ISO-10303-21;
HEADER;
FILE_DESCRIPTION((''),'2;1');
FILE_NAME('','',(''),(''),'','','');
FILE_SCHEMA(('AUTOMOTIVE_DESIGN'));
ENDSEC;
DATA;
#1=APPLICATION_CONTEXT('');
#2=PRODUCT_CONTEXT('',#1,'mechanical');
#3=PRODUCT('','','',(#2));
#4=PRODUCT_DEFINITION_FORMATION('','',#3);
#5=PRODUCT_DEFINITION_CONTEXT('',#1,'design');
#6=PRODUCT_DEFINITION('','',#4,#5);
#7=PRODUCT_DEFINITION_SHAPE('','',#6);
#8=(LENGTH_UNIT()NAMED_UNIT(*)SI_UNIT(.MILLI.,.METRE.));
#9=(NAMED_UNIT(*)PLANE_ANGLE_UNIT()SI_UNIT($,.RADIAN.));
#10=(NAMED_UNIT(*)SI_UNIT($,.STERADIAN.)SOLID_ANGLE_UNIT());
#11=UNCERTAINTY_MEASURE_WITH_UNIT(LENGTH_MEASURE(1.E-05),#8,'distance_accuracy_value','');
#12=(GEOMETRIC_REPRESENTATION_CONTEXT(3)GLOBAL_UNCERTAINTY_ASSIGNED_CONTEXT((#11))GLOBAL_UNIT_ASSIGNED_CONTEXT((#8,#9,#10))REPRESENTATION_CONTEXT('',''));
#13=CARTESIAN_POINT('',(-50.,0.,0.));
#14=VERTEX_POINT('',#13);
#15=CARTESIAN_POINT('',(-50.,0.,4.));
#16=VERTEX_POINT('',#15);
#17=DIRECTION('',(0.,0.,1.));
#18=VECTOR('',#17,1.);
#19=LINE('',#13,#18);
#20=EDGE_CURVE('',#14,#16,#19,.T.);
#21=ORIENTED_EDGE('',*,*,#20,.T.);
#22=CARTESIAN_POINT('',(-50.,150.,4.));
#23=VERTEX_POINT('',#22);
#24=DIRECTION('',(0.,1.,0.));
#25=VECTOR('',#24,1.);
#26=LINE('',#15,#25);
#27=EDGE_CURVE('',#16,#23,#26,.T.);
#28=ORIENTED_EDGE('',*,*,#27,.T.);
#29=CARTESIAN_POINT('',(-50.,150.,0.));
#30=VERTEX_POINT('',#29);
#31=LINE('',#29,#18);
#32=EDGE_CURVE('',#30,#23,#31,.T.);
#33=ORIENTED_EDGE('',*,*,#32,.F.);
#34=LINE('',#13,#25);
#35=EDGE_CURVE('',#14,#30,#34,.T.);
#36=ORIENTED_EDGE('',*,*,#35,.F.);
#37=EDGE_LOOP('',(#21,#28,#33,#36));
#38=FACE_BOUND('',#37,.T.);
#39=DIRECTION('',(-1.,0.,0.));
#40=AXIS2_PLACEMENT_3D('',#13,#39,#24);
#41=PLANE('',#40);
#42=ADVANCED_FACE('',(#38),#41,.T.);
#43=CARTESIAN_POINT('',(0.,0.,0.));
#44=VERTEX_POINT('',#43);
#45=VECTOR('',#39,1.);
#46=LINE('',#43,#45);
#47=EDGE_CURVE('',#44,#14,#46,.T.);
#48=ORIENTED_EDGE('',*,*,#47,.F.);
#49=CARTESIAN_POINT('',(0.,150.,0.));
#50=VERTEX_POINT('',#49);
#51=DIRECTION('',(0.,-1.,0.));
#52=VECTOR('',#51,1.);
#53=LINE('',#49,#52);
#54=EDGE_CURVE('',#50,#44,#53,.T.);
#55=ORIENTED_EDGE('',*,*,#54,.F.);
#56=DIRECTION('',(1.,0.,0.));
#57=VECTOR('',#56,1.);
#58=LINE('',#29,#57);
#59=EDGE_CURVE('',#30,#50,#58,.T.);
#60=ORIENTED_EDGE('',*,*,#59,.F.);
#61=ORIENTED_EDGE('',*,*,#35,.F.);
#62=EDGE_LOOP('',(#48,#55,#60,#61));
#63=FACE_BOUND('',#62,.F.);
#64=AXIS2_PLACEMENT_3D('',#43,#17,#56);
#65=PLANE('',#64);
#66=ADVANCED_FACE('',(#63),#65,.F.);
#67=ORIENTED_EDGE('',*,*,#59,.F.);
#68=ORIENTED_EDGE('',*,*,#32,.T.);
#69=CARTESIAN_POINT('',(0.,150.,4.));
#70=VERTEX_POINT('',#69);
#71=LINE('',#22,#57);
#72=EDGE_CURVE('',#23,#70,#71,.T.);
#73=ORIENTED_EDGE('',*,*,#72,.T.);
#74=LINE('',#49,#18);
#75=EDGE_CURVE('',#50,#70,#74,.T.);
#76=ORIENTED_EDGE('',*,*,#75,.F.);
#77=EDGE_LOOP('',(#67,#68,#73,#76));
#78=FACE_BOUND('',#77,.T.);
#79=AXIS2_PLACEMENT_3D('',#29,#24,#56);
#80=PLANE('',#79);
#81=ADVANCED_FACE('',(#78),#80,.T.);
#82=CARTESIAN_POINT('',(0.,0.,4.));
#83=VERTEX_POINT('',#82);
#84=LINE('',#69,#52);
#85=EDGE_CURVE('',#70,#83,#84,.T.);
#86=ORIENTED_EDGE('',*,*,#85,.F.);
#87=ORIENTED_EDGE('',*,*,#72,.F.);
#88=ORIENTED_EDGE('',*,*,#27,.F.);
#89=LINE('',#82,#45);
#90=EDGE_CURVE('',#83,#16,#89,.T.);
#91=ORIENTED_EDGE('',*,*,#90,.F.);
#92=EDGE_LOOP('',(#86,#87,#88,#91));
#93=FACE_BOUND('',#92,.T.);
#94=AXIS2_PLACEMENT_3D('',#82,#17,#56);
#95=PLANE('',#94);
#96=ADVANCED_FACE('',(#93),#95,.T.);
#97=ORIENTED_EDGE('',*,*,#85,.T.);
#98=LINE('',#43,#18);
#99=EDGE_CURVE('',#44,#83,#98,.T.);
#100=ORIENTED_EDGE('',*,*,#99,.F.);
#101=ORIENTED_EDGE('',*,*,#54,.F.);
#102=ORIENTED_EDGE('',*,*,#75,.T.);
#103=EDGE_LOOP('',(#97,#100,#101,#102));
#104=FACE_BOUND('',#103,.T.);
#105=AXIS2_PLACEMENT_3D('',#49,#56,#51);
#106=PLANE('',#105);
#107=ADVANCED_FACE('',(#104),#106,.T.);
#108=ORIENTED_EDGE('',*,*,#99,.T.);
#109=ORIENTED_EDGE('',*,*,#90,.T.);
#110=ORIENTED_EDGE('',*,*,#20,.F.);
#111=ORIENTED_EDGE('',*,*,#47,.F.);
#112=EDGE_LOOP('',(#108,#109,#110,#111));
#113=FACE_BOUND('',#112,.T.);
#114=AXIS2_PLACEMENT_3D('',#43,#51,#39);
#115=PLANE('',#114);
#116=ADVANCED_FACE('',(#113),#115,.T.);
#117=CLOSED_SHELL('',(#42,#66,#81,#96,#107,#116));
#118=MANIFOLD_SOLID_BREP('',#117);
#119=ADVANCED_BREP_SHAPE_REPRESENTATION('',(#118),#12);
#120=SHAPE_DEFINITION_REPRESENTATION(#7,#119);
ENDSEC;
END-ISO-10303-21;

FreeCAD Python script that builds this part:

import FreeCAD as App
import Part
import Sketcher
from FreeCAD import Vector
Q = App.Units.Quantity


def add_polygon(sketch, points):
    """Adds a closed chain of lines whose ends are joined by coincident constraints."""
    first, n = sketch.GeometryCount, len(points)
    for a, b in zip(points, points[1:] + points[:1]):
        sketch.addGeometry(Part.LineSegment(App.Vector(*a, 0), App.Vector(*b, 0)), False)
    for i in range(n):
        sketch.addConstraint(Sketcher.Constraint("Coincident", first + i, 2, first + (i + 1) % n, 1))

doc = App.newDocument("Part")
params = doc.addObject("Spreadsheet::Sheet", "Params")
for row, (alias, value) in enumerate([
    ("sketch1_width", "50 mm"),
    ("sketch1_height", "150 mm"),
    ("pad1_length", "4 mm"),
], start=1):
    params.set(f"A{row}", alias)
    params.set(f"B{row}", "=" + value)
    params.setAlias(f"B{row}", alias)

body = doc.addObject("PartDesign::Body", "Body")

sketch1 = body.newObject("Sketcher::SketchObject", "Sketch")
sketch1.AttachmentSupport = (doc.getObject("XY_Plane"), [""])
sketch1.MapMode = "FlatFace"
add_polygon(sketch1, [(-50, 0), (0, 0), (0, 150), (-50, 150)])
sketch1.addConstraint(Sketcher.Constraint("Horizontal", 0))
sketch1.addConstraint(Sketcher.Constraint("Vertical", 1))
sketch1.addConstraint(Sketcher.Constraint("Horizontal", 2))
sketch1.addConstraint(Sketcher.Constraint("Vertical", 3))
sketch1.addConstraint(Sketcher.Constraint("Coincident", 0, 2, -1, 1))
sketch1.addConstraint(Sketcher.Constraint("DistanceX", 0, 1, 0, 2, Q("50 mm")))
sketch1.addConstraint(Sketcher.Constraint("DistanceY", 1, 1, 1, 2, Q("150 mm")))
sketch1.setExpression("Constraints[9]", "Params.sketch1_width")
sketch1.setExpression("Constraints[10]", "Params.sketch1_height")
pad1 = body.newObject("PartDesign::Pad", "Pad")
pad1.Profile = sketch1
pad1.setExpression("Length", "Params.pad1_length")

doc.recompute()
